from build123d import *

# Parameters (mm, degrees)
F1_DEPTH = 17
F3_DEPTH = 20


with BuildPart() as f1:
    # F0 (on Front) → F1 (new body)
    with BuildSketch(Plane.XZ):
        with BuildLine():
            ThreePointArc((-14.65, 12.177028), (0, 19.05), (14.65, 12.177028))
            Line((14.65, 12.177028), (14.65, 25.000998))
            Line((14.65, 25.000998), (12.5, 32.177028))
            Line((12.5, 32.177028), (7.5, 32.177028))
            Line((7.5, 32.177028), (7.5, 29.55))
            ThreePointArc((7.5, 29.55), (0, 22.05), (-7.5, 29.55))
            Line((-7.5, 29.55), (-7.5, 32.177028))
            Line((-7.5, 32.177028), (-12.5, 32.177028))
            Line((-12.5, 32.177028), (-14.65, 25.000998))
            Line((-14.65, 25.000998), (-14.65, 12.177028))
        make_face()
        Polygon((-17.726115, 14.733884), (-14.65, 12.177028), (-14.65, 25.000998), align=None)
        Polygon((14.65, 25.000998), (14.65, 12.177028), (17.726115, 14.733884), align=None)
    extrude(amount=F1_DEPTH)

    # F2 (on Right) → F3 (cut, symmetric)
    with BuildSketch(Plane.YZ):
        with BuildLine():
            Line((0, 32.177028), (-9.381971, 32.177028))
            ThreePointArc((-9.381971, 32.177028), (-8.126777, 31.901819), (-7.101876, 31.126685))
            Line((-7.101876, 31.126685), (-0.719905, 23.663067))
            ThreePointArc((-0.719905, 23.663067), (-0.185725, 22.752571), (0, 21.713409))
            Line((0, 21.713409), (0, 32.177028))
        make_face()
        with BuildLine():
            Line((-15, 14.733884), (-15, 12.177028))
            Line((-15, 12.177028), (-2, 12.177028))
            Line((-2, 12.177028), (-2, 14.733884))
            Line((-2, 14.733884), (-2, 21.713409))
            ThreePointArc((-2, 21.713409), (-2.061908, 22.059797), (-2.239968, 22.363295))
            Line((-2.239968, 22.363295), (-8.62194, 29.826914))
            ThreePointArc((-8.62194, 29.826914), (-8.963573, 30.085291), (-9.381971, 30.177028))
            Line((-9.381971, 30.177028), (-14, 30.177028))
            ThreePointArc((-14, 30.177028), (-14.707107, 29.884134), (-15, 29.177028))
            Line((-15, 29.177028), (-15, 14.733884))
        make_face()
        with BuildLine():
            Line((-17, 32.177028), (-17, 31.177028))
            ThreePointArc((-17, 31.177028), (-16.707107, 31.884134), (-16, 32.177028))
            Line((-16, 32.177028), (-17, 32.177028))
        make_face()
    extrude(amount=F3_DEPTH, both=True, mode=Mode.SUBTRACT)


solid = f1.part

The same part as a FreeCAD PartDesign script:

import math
import FreeCAD as App
import Part
import Sketcher

V = App.Vector

doc = App.newDocument("Part")
body = doc.addObject("PartDesign::Body", "Body")

sketch1 = body.newObject("Sketcher::SketchObject", "Sketch")
sketch1.AttachmentSupport = (doc.getObject("XZ_Plane"), [""])
sketch1.MapMode = "FlatFace"
sketch1.addGeometry([
    Part.ArcOfCircle(Part.Circle(V(0, 0, 0), V(0, 0, 1), 19.1), math.radians(40), math.radians(140)),
    Part.LineSegment(V(14.7, 12.2, 0), V(17.7, 14.7, 0)),
    Part.LineSegment(V(17.7, 14.7, 0), V(14.7, 25, 0)),
    Part.LineSegment(V(14.7, 25, 0), V(12.5, 32.2, 0)),
    Part.LineSegment(V(12.5, 32.2, 0), V(7.5, 32.2, 0)),
    Part.LineSegment(V(7.5, 32.2, 0), V(7.5, 29.6, 0)),
    Part.ArcOfCircle(Part.Circle(V(0, 29.6, 0), V(0, 0, 1), 7.5), math.radians(180), math.radians(360)),
    Part.LineSegment(V(-7.5, 29.6, 0), V(-7.5, 32.2, 0)),
    Part.LineSegment(V(-7.5, 32.2, 0), V(-12.5, 32.2, 0)),
    Part.LineSegment(V(-12.5, 32.2, 0), V(-14.7, 25, 0)),
    Part.LineSegment(V(-14.7, 25, 0), V(-17.7, 14.7, 0)),
    Part.LineSegment(V(-17.7, 14.7, 0), V(-14.7, 12.2, 0)),
], False)
sketch1.addConstraint([
    Sketcher.Constraint("Coincident", 0, 1, 1, 1),
    Sketcher.Constraint("Coincident", 1, 2, 2, 1),
    Sketcher.Constraint("Coincident", 2, 2, 3, 1),
    Sketcher.Constraint("Coincident", 3, 2, 4, 1),
    Sketcher.Constraint("Coincident", 4, 2, 5, 1),
    Sketcher.Constraint("Tangent", 5, 2, 6, 2),
    Sketcher.Constraint("Tangent", 6, 1, 7, 1),
    Sketcher.Constraint("Coincident", 7, 2, 8, 1),
    Sketcher.Constraint("Coincident", 8, 2, 9, 1),
    Sketcher.Constraint("Coincident", 9, 2, 10, 1),
    Sketcher.Constraint("Coincident", 10, 2, 11, 1),
    Sketcher.Constraint("Coincident", 11, 2, 0, 2),
    Sketcher.Constraint("Horizontal", 4),
    Sketcher.Constraint("Vertical", 5),
    Sketcher.Constraint("Vertical", 7),
    Sketcher.Constraint("Horizontal", 8),
    Sketcher.Constraint("Coincident", 0, 3, -1, 1),
    Sketcher.Constraint("Symmetric", 4, 2, 7, 2, -2),
    Sketcher.Constraint("Symmetric", 2, 2, 9, 2, -2),
    Sketcher.Constraint("Symmetric", 1, 2, 10, 2, -2),
    Sketcher.Constraint("Parallel", 2, 3),
    Sketcher.Constraint("Parallel", 9, 10),
    Sketcher.Constraint("Horizontal", 0, 1, 11, 2),
    Sketcher.Constraint("Vertical", 0, 1, 2, 2),
    Sketcher.Constraint("Radius", 6, 7.5),
    Sketcher.Constraint("DistanceX", 4, 2, 4, 1, 5.0),
    Sketcher.Constraint("Radius", 0, 19.050001),
    Sketcher.Constraint("Distance", 1, 4.0),
    Sketcher.Constraint("DistanceY", 0, 1, 3, 2, 20.0),
    Sketcher.Constraint("DistanceY", -1, 1, 6, 3, 29.55),
    Sketcher.Constraint("DistanceX", -1, 1, 0, 1, 14.65),
    Sketcher.Constraint("DistanceY", 0, 3, 2, 2, 25.000999),
])
pad1 = body.newObject("PartDesign::Pad", "Pad")
pad1.Profile = sketch1
pad1.Length = 17

sketch2 = body.newObject("Sketcher::SketchObject", "Sketch001")
sketch2.AttachmentSupport = (doc.getObject("YZ_Plane"), [""])
sketch2.MapMode = "FlatFace"
sketch2.addGeometry([
    Part.LineSegment(V(0, 32.2, 0), V(-9.4, 32.2, 0)),
    Part.ArcOfCircle(Part.Circle(V(-9.4, 29.2, 0), V(0, 0, 1), 3), math.radians(41), math.radians(90)),
    Part.LineSegment(V(-7.1, 31.1, 0), V(-0.7, 23.7, 0)),
    Part.ArcOfCircle(Part.Circle(V(-3, 21.7, 0), V(0, 0, 1), 3), math.radians(0), math.radians(41)),
    Part.LineSegment(V(0, 21.7, 0), V(0, 32.2, 0)),
    Part.LineSegment(V(-15, 12.2, 0), V(-2, 12.2, 0)),
    Part.LineSegment(V(-2, 12.2, 0), V(-2, 21.7, 0)),
    Part.ArcOfCircle(Part.Circle(V(-3, 21.7, 0), V(0, 0, 1), 1), math.radians(0), math.radians(41)),
    Part.LineSegment(V(-2.2, 22.4, 0), V(-8.6, 29.8, 0)),
    Part.ArcOfCircle(Part.Circle(V(-9.4, 29.2, 0), V(0, 0, 1), 1), math.radians(41), math.radians(90)),
    Part.LineSegment(V(-9.4, 30.2, 0), V(-14, 30.2, 0)),
    Part.ArcOfCircle(Part.Circle(V(-14, 29.2, 0), V(0, 0, 1), 1), math.radians(90), math.radians(180)),
    Part.LineSegment(V(-15, 29.2, 0), V(-15, 12.2, 0)),
    Part.LineSegment(V(-17, 32.2, 0), V(-17, 31.2, 0)),
    Part.ArcOfCircle(Part.Circle(V(-16, 31.2, 0), V(0, 0, 1), 1), math.radians(90), math.radians(180)),
    Part.LineSegment(V(-16, 32.2, 0), V(-17, 32.2, 0)),
], False)
sketch2.addConstraint([
    Sketcher.Constraint("Tangent", 0, 2, 1, 2),
    Sketcher.Constraint("Tangent", 1, 1, 2, 1),
    Sketcher.Constraint("Tangent", 2, 2, 3, 2),
    Sketcher.Constraint("Tangent", 3, 1, 4, 1),
    Sketcher.Constraint("Coincident", 4, 2, 0, 1),
    Sketcher.Constraint("Coincident", 5, 2, 6, 1),
    Sketcher.Constraint("Coincident", 6, 2, 7, 1),
    Sketcher.Constraint("Coincident", 7, 2, 8, 1),
    Sketcher.Constraint("Tangent", 8, 2, 9, 1),
    Sketcher.Constraint("Coincident", 9, 2, 10, 1),
    Sketcher.Constraint("Tangent", 10, 2, 11, 1),
    Sketcher.Constraint("Tangent", 11, 2, 12, 1),
    Sketcher.Constraint("Coincident", 12, 2, 5, 1),
    Sketcher.Constraint("Tangent", 13, 2, 14, 2),
    Sketcher.Constraint("Tangent", 14, 1, 15, 1),
    Sketcher.Constraint("Coincident", 15, 2, 13, 1),
    Sketcher.Constraint("Horizontal", 0),
    Sketcher.Constraint("Vertical", 4),
    Sketcher.Constraint("Horizontal", 5),
    Sketcher.Constraint("Vertical", 6),
    Sketcher.Constraint("Horizontal", 10),
    Sketcher.Constraint("Vertical", 12),
    Sketcher.Constraint("Vertical", 13),
    Sketcher.Constraint("Horizontal", 15),
    Sketcher.Constraint("Coincident", 7, 3, 3, 3),
    Sketcher.Constraint("Coincident", 9, 3, 1, 3),
    Sketcher.Constraint("Equal", 11, 14),
    Sketcher.Constraint("PointOnObject", 3, 1, -2),
    Sketcher.Constraint("Parallel", 2, 8),
    Sketcher.Constraint("Horizontal", 1, 3, 11, 3),
    Sketcher.Constraint("Horizontal", 3, 1, 6, 2),
    Sketcher.Constraint("Horizontal", 4, 2, 14, 1),
    Sketcher.Constraint("Vertical", 0, 2, 9, 2),
    Sketcher.Constraint("Equal", 2, 8),
    Sketcher.Constraint("Radius", 1, 2.999999),
    Sketcher.Constraint("Radius", 11, 1.000001),
    Sketcher.Constraint("DistanceX", 5, 1, 5, 2, 13.0),
    Sketcher.Constraint("DistanceY", 12, 2, 12, 1, 17.0),
    Sketcher.Constraint("DistanceX", 14, 3, -1, 1, 15.999999),
    Sketcher.Constraint("Radius", 3, 2.999996),
    Sketcher.Constraint("DistanceX", 0, 2, 0, 1, 9.381971),
    Sketcher.Constraint("DistanceY", 4, 1, 4, 2, 10.463619),
    Sketcher.Constraint("DistanceY", -1, 1, 1, 3, 29.177029),
])
pocket1 = body.newObject("PartDesign::Pocket", "Pocket")
pocket1.Profile = sketch2
pocket1.Length = 40
pocket1.Midplane = True

doc.recompute()
